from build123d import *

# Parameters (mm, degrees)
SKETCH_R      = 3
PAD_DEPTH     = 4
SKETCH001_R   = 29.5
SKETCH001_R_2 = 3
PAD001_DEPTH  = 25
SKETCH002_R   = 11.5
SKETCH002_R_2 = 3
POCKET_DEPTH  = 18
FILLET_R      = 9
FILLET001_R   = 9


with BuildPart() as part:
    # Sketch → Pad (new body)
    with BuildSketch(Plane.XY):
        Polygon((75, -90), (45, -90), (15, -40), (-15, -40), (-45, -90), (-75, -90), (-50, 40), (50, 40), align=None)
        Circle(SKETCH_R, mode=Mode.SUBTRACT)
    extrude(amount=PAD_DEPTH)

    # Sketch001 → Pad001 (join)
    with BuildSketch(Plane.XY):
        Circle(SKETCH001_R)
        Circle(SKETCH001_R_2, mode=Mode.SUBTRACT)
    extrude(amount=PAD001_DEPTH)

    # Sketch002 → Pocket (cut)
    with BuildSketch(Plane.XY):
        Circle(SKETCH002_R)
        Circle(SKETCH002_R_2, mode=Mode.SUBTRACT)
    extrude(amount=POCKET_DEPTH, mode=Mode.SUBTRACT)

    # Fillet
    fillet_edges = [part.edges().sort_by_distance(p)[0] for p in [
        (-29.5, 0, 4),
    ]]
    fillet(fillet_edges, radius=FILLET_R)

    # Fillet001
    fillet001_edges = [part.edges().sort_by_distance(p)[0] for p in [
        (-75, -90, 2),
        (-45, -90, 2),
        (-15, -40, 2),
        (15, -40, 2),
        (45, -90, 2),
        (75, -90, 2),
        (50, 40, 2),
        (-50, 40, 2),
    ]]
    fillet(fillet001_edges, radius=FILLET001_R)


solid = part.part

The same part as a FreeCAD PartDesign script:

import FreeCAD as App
import Part
import Sketcher


def edges_at(feature, points):
    """Names of the edges that pass closest to the given points."""
    edges = feature.Shape.Edges
    near = lambda p: min(range(len(edges)), key=lambda i: edges[i].distToShape(Part.Vertex(*p))[0])
    return sorted({f"Edge{near(p) + 1}" for p in points})

doc = App.newDocument("Part")
body = doc.addObject("PartDesign::Body", "Body")

# Sketch on XY plane
sketch1 = body.newObject("Sketcher::SketchObject", "Sketch")
sketch1.AttachmentSupport = (doc.getObject("XY_Plane"), [""])
sketch1.MapMode = "FlatFace"
sketch1.addGeometry([
    Part.LineSegment(App.Vector(45, -90, 0), App.Vector(75, -90, 0)),  # 0
    Part.LineSegment(App.Vector(75, -90, 0), App.Vector(50, 40, 0)),  # 1
    Part.LineSegment(App.Vector(50, 40, 0), App.Vector(-50, 40, 0)),  # 2
    Part.LineSegment(App.Vector(-50, 40, 0), App.Vector(-75, -90, 0)),  # 3
    Part.LineSegment(App.Vector(-75, -90, 0), App.Vector(-45, -90, 0)),  # 4
    Part.LineSegment(App.Vector(-45, -90, 0), App.Vector(-15, -40, 0)),  # 5
    Part.LineSegment(App.Vector(-15, -40, 0), App.Vector(15, -40, 0)),  # 6
    Part.LineSegment(App.Vector(15, -40, 0), App.Vector(45, -90, 0)),  # 7
    Part.Circle(App.Vector(0, 0, 0), App.Vector(0, 0, 1), 3),  # 8
], False)
sketch1.addConstraint([
    Sketcher.Constraint("Coincident", 0, 2, 1, 1),
    Sketcher.Constraint("Coincident", 1, 2, 2, 1),
    Sketcher.Constraint("Coincident", 2, 2, 3, 1),
    Sketcher.Constraint("Coincident", 3, 2, 4, 1),
    Sketcher.Constraint("Coincident", 4, 2, 5, 1),
    Sketcher.Constraint("Coincident", 5, 2, 6, 1),
    Sketcher.Constraint("Coincident", 6, 2, 7, 1),
    Sketcher.Constraint("Coincident", 7, 2, 0, 1),
    Sketcher.Constraint("Horizontal", 0),
    Sketcher.Constraint("Horizontal", 2),
    Sketcher.Constraint("Horizontal", 4),
    Sketcher.Constraint("Horizontal", 6),
    Sketcher.Constraint("Coincident", 8, 3, -1, 1),
    Sketcher.Constraint("Symmetric", 0, 2, 3, 2, -2),
    Sketcher.Constraint("Equal", 0, 4),
    Sketcher.Constraint("Equal", 4, 6),
    Sketcher.Constraint("Equal", 1, 3),
    Sketcher.Constraint("Equal", 5, 7),
    Sketcher.Constraint("Diameter", 8, 6.0),
    Sketcher.Constraint("DistanceX", 0, 1, 0, 2, 30.0),
    Sketcher.Constraint("DistanceX", 2, 2, 2, 1, 100.0),
    Sketcher.Constraint("DistanceX", -1, 1, 0, 2, 75.0),
    Sketcher.Constraint("DistanceY", 0, 2, -1, 1, 90.0),
    Sketcher.Constraint("DistanceY", -1, 1, 1, 2, 40.0),
    Sketcher.Constraint("DistanceY", 5, 2, -1, 1, 40.0),
])
pad1 = body.newObject("PartDesign::Pad", "Pad")
pad1.Profile = sketch1
pad1.Length = 4

# Sketch on XY plane
sketch2 = body.newObject("Sketcher::SketchObject", "Sketch001")
sketch2.AttachmentSupport = (doc.getObject("XY_Plane"), [""])
sketch2.MapMode = "FlatFace"
sketch2.addGeometry([
    Part.Circle(App.Vector(0, 0, 0), App.Vector(0, 0, 1), 29.5),
    Part.Circle(App.Vector(0, 0, 0), App.Vector(0, 0, 1), 3),
], False)
sketch2.addConstraint([
    Sketcher.Constraint("Coincident", 0, 3, -1, 1),
    Sketcher.Constraint("Coincident", 1, 3, -1, 1),
    Sketcher.Constraint("Diameter", 0, 59.0),
    Sketcher.Constraint("Diameter", 1, 6.0),
])
pad2 = body.newObject("PartDesign::Pad", "Pad001")
pad2.Profile = sketch2
pad2.Length = 25

# Sketch on XY plane
sketch3 = body.newObject("Sketcher::SketchObject", "Sketch002")
sketch3.AttachmentSupport = (doc.getObject("XY_Plane"), [""])
sketch3.MapMode = "FlatFace"
sketch3.addGeometry([
    Part.Circle(App.Vector(0, 0, 0), App.Vector(0, 0, 1), 11.5),
    Part.Circle(App.Vector(0, 0, 0), App.Vector(0, 0, 1), 3),
], False)
sketch3.addConstraint([
    Sketcher.Constraint("Coincident", 0, 3, -1, 1),
    Sketcher.Constraint("Coincident", 1, 3, -1, 1),
    Sketcher.Constraint("Diameter", 0, 23.0),
    Sketcher.Constraint("Diameter", 1, 6.0),
])
pocket1 = body.newObject("PartDesign::Pocket", "Pocket")
pocket1.Profile = sketch3
pocket1.Length = 18
pocket1.Reversed = True
doc.recompute()

fillet = body.newObject("PartDesign::Fillet", "Fillet")
fillet.Base = (pocket1, edges_at(pocket1, [(-29.5, 0, 4)]))
fillet.Radius = 9
doc.recompute()

fillet2 = body.newObject("PartDesign::Fillet", "Fillet001")
fillet2.Base = (fillet, edges_at(fillet, [
    (-75, -90, 2),
    (-45, -90, 2),
    (-15, -40, 2),
    (15, -40, 2),
    (45, -90, 2),
    (75, -90, 2),
    (50, 40, 2),
    (-50, 40, 2),
]))
fillet2.Radius = 9

doc.recompute()
